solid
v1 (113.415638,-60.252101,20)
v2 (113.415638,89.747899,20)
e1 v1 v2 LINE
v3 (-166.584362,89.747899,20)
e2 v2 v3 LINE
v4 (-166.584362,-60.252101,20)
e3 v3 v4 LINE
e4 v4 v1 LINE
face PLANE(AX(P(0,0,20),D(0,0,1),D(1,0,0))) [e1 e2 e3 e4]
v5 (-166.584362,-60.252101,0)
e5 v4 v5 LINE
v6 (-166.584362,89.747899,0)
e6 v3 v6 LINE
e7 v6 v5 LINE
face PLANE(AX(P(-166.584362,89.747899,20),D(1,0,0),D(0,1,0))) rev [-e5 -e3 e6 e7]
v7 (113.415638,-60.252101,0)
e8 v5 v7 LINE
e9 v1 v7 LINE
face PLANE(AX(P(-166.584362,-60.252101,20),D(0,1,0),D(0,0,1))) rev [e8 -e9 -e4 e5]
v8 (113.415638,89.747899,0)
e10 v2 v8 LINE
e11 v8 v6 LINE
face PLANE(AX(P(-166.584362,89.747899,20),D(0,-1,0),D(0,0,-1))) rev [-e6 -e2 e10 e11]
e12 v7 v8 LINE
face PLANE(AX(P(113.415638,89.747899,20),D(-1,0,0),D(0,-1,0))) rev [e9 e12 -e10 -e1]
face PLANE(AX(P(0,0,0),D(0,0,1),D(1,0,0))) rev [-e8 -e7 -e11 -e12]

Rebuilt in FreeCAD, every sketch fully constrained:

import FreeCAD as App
import Part
import Sketcher

V = App.Vector


def add_polygon(sketch, points):
    """Adds a closed chain of lines whose ends are joined by coincident constraints."""
    first, n = sketch.GeometryCount, len(points)
    for a, b in zip(points, points[1:] + points[:1]):
        sketch.addGeometry(Part.LineSegment(App.Vector(*a, 0), App.Vector(*b, 0)), False)
    for i in range(n):
        sketch.addConstraint(Sketcher.Constraint("Coincident", first + i, 2, first + (i + 1) % n, 1))

doc = App.newDocument("Part")
body = doc.addObject("PartDesign::Body", "Body")

# Sketch on XY plane
sketch1 = doc.addObject("Sketcher::SketchObject", "Sketch")
body.addObject(sketch1)
sketch1.AttachmentSupport = (doc.XY_Plane, [""])
sketch1.MapMode = "FlatFace"
add_polygon(sketch1, [(-166.584362, 89.747899), (-166.584362, -60.252101), (113.415638, -60.252101), (113.415638, 89.747899)])  # lines 0-3
sketch1.addConstraint(Sketcher.Constraint("Vertical", 0))
sketch1.addConstraint(Sketcher.Constraint("Horizontal", 1))
sketch1.addConstraint(Sketcher.Constraint("Vertical", 2))
sketch1.addConstraint(Sketcher.Constraint("Horizontal", 3))
sketch1.addConstraint(Sketcher.Constraint("DistanceX", 1, 1, 1, 2, 280.0))
sketch1.addConstraint(Sketcher.Constraint("DistanceY", 0, 2, 0, 1, 150.0))
sketch1.addConstraint(Sketcher.Constraint("DistanceY", 0, 2, -1, 1, 60.252101))
sketch1.addConstraint(Sketcher.Constraint("DistanceX", 0, 2, -1, 1, 166.584362))
pad1 = doc.addObject("PartDesign::Pad", "Pad")
body.addObject(pad1)
pad1.Profile = sketch1
pad1.Length = 20

doc.recompute()
